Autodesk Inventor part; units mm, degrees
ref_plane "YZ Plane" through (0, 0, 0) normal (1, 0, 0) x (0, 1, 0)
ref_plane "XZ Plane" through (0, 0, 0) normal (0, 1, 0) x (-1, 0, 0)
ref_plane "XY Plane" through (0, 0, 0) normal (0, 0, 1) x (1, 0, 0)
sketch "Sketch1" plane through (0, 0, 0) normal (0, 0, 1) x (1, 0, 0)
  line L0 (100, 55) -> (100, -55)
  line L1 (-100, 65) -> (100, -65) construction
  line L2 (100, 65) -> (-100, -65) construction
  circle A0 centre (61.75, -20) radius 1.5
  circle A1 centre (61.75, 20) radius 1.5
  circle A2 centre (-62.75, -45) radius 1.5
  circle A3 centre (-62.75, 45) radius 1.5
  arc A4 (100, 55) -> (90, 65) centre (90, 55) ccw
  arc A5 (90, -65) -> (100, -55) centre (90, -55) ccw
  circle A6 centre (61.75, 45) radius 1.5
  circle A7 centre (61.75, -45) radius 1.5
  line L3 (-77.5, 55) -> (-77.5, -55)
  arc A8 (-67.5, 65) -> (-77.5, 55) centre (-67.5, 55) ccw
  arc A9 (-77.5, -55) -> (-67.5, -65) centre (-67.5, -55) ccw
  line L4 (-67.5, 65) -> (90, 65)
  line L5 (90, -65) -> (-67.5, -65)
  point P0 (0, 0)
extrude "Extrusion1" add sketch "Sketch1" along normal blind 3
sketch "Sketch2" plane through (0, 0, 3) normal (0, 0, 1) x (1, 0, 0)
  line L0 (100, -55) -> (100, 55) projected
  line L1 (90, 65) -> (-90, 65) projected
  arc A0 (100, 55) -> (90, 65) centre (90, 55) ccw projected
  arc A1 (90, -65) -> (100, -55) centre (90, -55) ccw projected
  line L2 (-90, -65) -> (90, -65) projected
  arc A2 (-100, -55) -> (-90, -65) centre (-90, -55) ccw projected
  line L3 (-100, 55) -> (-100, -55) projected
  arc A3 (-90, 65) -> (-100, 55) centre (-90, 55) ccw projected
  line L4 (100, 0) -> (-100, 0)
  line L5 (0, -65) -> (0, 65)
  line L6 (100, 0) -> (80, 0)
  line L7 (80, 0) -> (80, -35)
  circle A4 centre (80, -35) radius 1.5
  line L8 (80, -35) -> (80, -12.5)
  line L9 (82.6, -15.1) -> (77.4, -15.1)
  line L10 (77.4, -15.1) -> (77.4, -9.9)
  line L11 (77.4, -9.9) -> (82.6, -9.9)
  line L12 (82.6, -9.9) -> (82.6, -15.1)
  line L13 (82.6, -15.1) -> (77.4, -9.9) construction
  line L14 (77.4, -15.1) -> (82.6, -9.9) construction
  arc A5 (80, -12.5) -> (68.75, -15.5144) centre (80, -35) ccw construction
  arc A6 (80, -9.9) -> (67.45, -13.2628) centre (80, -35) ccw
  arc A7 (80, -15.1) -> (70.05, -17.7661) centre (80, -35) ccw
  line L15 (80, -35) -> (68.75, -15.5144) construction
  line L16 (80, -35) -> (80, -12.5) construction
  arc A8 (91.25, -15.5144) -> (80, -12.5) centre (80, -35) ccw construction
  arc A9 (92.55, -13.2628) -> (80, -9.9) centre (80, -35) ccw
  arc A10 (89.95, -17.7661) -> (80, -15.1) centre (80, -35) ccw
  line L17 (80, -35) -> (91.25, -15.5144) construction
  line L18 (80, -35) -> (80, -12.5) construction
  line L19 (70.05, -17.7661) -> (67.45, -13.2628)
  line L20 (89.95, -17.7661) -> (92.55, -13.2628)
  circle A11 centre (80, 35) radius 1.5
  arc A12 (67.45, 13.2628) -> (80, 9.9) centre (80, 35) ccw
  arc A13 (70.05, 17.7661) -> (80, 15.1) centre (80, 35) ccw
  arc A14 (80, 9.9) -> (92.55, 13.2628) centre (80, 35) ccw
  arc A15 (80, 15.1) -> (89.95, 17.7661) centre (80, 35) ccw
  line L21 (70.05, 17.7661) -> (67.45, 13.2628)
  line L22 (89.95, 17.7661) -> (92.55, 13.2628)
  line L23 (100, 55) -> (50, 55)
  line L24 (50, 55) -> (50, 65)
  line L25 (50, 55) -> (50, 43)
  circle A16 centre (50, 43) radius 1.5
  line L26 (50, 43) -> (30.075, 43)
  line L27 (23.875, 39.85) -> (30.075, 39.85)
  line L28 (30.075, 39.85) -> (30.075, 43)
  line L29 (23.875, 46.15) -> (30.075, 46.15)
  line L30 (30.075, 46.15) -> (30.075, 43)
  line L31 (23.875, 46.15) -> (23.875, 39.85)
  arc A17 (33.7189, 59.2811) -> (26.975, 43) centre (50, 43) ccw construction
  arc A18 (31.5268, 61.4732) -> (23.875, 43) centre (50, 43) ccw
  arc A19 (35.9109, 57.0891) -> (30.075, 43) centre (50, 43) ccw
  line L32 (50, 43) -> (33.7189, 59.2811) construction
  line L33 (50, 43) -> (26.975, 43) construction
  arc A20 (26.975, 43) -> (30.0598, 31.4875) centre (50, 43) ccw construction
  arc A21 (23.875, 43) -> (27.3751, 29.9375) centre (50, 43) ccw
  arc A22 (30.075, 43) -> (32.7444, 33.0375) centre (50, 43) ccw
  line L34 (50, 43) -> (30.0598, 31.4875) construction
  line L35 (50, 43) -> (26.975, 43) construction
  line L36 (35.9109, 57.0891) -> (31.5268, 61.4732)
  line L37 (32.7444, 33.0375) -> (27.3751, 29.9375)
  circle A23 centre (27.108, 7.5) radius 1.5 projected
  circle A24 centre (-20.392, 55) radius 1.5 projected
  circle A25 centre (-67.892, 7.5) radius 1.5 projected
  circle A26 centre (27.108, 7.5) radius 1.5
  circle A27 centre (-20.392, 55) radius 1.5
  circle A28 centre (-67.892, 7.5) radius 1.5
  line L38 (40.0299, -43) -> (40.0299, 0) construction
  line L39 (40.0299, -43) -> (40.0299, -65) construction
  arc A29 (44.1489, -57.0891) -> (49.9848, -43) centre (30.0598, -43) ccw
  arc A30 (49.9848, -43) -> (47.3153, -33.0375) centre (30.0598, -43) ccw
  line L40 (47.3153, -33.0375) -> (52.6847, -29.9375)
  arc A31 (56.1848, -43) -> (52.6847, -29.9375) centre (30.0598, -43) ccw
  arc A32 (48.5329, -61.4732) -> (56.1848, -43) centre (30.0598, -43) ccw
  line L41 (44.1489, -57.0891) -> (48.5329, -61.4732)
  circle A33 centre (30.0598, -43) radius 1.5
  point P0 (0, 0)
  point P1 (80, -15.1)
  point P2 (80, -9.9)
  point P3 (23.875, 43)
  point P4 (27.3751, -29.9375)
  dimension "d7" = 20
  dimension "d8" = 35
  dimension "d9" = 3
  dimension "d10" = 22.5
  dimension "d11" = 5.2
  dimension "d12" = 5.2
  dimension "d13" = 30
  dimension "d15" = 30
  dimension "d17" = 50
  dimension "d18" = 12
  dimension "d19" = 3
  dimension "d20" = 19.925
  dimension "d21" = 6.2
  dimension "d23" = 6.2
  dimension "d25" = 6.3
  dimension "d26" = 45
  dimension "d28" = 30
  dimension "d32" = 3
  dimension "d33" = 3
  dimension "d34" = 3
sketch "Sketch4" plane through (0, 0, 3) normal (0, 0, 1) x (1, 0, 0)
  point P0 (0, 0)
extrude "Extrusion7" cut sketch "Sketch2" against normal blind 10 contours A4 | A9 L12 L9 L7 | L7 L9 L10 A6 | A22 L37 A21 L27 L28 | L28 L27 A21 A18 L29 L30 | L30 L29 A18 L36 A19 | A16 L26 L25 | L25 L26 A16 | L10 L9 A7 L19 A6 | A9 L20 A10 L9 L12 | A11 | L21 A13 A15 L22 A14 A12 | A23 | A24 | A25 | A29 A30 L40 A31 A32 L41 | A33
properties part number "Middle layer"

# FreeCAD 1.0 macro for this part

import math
import FreeCAD as App
import Part
import Sketcher
Q = App.Units.Quantity

doc = App.newDocument("Part")
body = doc.addObject("PartDesign::Body", "Body")

# Sketch on XY plane
sketch1 = body.newObject("Sketcher::SketchObject", "Sketch")
sketch1.AttachmentSupport = (doc.getObject("XY_Plane"), [""])
sketch1.MapMode = "FlatFace"
sketch1.addGeometry([
    Part.LineSegment(App.Vector(100, -55, 0), App.Vector(100, 55, 0)),  # 0
    Part.ArcOfCircle(Part.Circle(App.Vector(90, 55, 0), App.Vector(0, 0, 1), 10), math.radians(0), math.radians(90)),  # 1
    Part.LineSegment(App.Vector(90, 65, 0), App.Vector(-67.5, 65, 0)),  # 2
    Part.ArcOfCircle(Part.Circle(App.Vector(-67.5, 55, 0), App.Vector(0, 0, 1), 10), math.radians(90), math.radians(180)),  # 3
    Part.LineSegment(App.Vector(-77.5, 55, 0), App.Vector(-77.5, -55, 0)),  # 4
    Part.ArcOfCircle(Part.Circle(App.Vector(-67.5, -55, 0), App.Vector(0, 0, 1), 10), math.radians(180), math.radians(270)),  # 5
    Part.LineSegment(App.Vector(-67.5, -65, 0), App.Vector(90, -65, 0)),  # 6
    Part.ArcOfCircle(Part.Circle(App.Vector(90, -55, 0), App.Vector(0, 0, 1), 10), math.radians(-90), math.radians(0)),  # 7
    Part.Circle(App.Vector(-62.8, -45, 0), App.Vector(0, 0, 1), 1.5),  # 8
    Part.Circle(App.Vector(61.8, -45, 0), App.Vector(0, 0, 1), 1.5),  # 9
    Part.Circle(App.Vector(61.8, -20, 0), App.Vector(0, 0, 1), 1.5),  # 10
    Part.Circle(App.Vector(-62.8, 45, 0), App.Vector(0, 0, 1), 1.5),  # 11
    Part.Circle(App.Vector(61.8, 20, 0), App.Vector(0, 0, 1), 1.5),  # 12
    Part.Circle(App.Vector(61.8, 45, 0), App.Vector(0, 0, 1), 1.5),  # 13
], False)
sketch1.addConstraint([
    Sketcher.Constraint("Tangent", 0, 2, 1, 1),
    Sketcher.Constraint("Tangent", 1, 2, 2, 1),
    Sketcher.Constraint("Tangent", 2, 2, 3, 1),
    Sketcher.Constraint("Tangent", 3, 2, 4, 1),
    Sketcher.Constraint("Tangent", 4, 2, 5, 1),
    Sketcher.Constraint("Tangent", 5, 2, 6, 1),
    Sketcher.Constraint("Tangent", 6, 2, 7, 1),
    Sketcher.Constraint("Tangent", 7, 2, 0, 1),
    Sketcher.Constraint("Vertical", 0),
    Sketcher.Constraint("Horizontal", 2),
    Sketcher.Constraint("Vertical", 4),
    Sketcher.Constraint("Horizontal", 6),
    Sketcher.Constraint("Equal", 1, 3),
    Sketcher.Constraint("Equal", 3, 5),
    Sketcher.Constraint("Equal", 5, 7),
    Sketcher.Constraint("Equal", 8, 9),
    Sketcher.Constraint("Equal", 9, 10),
    Sketcher.Constraint("Equal", 10, 11),
    Sketcher.Constraint("Equal", 11, 12),
    Sketcher.Constraint("Equal", 12, 13),
    Sketcher.Constraint("Symmetric", 8, 3, 11, 3, -1),
    Sketcher.Constraint("Symmetric", 10, 3, 12, 3, -1),
    Sketcher.Constraint("Symmetric", 9, 3, 13, 3, -1),
    Sketcher.Constraint("Horizontal", 8, 3, 9, 3),
    Sketcher.Constraint("Vertical", 9, 3, 10, 3),
    Sketcher.Constraint("Diameter", 8, Q("3 mm")),
    Sketcher.Constraint("Radius", 1, Q("10 mm")),
    Sketcher.Constraint("DistanceY", 0, 1, 0, 2, Q("110 mm")),
    Sketcher.Constraint("DistanceX", 2, 2, 2, 1, Q("157.5 mm")),
    Sketcher.Constraint("DistanceX", -1, 1, 1, 3, Q("90 mm")),
    Sketcher.Constraint("DistanceY", -1, 1, 1, 3, Q("55 mm")),
    Sketcher.Constraint("DistanceY", 8, 3, -1, 1, Q("45 mm")),
    Sketcher.Constraint("DistanceY", 10, 3, -1, 1, Q("20 mm")),
    Sketcher.Constraint("DistanceX", 8, 3, 9, 3, Q("124.5 mm")),
    Sketcher.Constraint("DistanceX", 8, 3, -1, 1, Q("62.75 mm")),
])
pad1 = body.newObject("PartDesign::Pad", "Pad")
pad1.Profile = sketch1
pad1.Length = 3

# Sketch on XY plane
sketch2 = body.newObject("Sketcher::SketchObject", "Sketch001")
sketch2.AttachmentSupport = (doc.getObject("XY_Plane"), [""])
sketch2.MapMode = "FlatFace"
sketch2.AttachmentOffset = App.Placement(App.Vector(0, 0, 3), App.Rotation())
sketch2.addGeometry([
    Part.Circle(App.Vector(80, -35, 0), App.Vector(0, 0, 1), 1.5),  # 0
    Part.ArcOfCircle(Part.Circle(App.Vector(80, -35, 0), App.Vector(0, 0, 1), 25.1), math.radians(90), math.radians(120)),  # 1
    Part.LineSegment(App.Vector(67.5, -13.3, 0), App.Vector(70, -17.8, 0)),  # 2
    Part.ArcOfCircle(Part.Circle(App.Vector(80, -35, 0), App.Vector(0, 0, 1), 19.9), math.radians(90), math.radians(120)),  # 3
    Part.ArcOfCircle(Part.Circle(App.Vector(80, -35, 0), App.Vector(0, 0, 1), 19.9), math.radians(60), math.radians(90)),  # 4
    Part.LineSegment(App.Vector(90, -17.8, 0), App.Vector(92.5, -13.3, 0)),  # 5
    Part.ArcOfCircle(Part.Circle(App.Vector(80, -35, 0), App.Vector(0, 0, 1), 25.1), math.radians(60), math.radians(90)),  # 6
    Part.ArcOfCircle(Part.Circle(App.Vector(50, 43, 0), App.Vector(0, 0, 1), 19.9), math.radians(180), math.radians(210)),  # 7
    Part.ArcOfCircle(Part.Circle(App.Vector(50, 43, 0), App.Vector(0, 0, 1), 19.9), math.radians(135), math.radians(180)),  # 8
    Part.LineSegment(App.Vector(35.9, 57.1, 0), App.Vector(31.5, 61.5, 0)),  # 9
    Part.ArcOfCircle(Part.Circle(App.Vector(50, 43, 0), App.Vector(0, 0, 1), 26.1), math.radians(135), math.radians(180)),  # 10
    Part.ArcOfCircle(Part.Circle(App.Vector(50, 43, 0), App.Vector(0, 0, 1), 26.1), math.radians(180), math.radians(210)),  # 11
    Part.LineSegment(App.Vector(27.4, 29.9, 0), App.Vector(32.7, 33, 0)),  # 12
    Part.Circle(App.Vector(50, 43, 0), App.Vector(0, 0, 1), 1.5),  # 13
    Part.Circle(App.Vector(80, 35, 0), App.Vector(0, 0, 1), 1.5),  # 14
    Part.LineSegment(App.Vector(70, 17.8, 0), App.Vector(67.5, 13.3, 0)),  # 15
    Part.ArcOfCircle(Part.Circle(App.Vector(80, 35, 0), App.Vector(0, 0, 1), 25.1), math.radians(-120), math.radians(-90)),  # 16
    Part.ArcOfCircle(Part.Circle(App.Vector(80, 35, 0), App.Vector(0, 0, 1), 25.1), math.radians(-90), math.radians(-60)),  # 17
    Part.LineSegment(App.Vector(92.5, 13.3, 0), App.Vector(90, 17.8, 0)),  # 18
    Part.ArcOfCircle(Part.Circle(App.Vector(80, 35, 0), App.Vector(0, 0, 1), 19.9), math.radians(-90), math.radians(-60)),  # 19
    Part.ArcOfCircle(Part.Circle(App.Vector(80, 35, 0), App.Vector(0, 0, 1), 19.9), math.radians(-120), math.radians(-90)),  # 20
    Part.Circle(App.Vector(27.1, 7.5, 0), App.Vector(0, 0, 1), 1.5),  # 21
    Part.Circle(App.Vector(-20.4, 55, 0), App.Vector(0, 0, 1), 1.5),  # 22
    Part.Circle(App.Vector(-67.9, 7.5, 0), App.Vector(0, 0, 1), 1.5),  # 23
    Part.ArcOfCircle(Part.Circle(App.Vector(30.1, -43, 0), App.Vector(0, 0, 1), 19.9), math.radians(-45), math.radians(0)),  # 24
    Part.LineSegment(App.Vector(44.1, -57.1, 0), App.Vector(48.5, -61.5, 0)),  # 25
    Part.ArcOfCircle(Part.Circle(App.Vector(30.1, -43, 0), App.Vector(0, 0, 1), 26.1), math.radians(-45), math.radians(0)),  # 26
    Part.ArcOfCircle(Part.Circle(App.Vector(30.1, -43, 0), App.Vector(0, 0, 1), 26.1), math.radians(0), math.radians(30)),  # 27
    Part.LineSegment(App.Vector(52.7, -29.9, 0), App.Vector(47.3, -33, 0)),  # 28
    Part.ArcOfCircle(Part.Circle(App.Vector(30.1, -43, 0), App.Vector(0, 0, 1), 19.9), math.radians(0), math.radians(30)),  # 29
    Part.Circle(App.Vector(30.1, -43, 0), App.Vector(0, 0, 1), 1.5),  # 30
], False)
sketch2.addConstraint([
    Sketcher.Constraint("Coincident", 1, 2, 2, 1),
    Sketcher.Constraint("Coincident", 2, 2, 3, 2),
    Sketcher.Constraint("Tangent", 3, 1, 4, 2),
    Sketcher.Constraint("Coincident", 4, 1, 5, 1),
    Sketcher.Constraint("Coincident", 5, 2, 6, 1),
    Sketcher.Constraint("Tangent", 6, 2, 1, 1),
    Sketcher.Constraint("Tangent", 7, 1, 8, 2),
    Sketcher.Constraint("Coincident", 8, 1, 9, 1),
    Sketcher.Constraint("Coincident", 9, 2, 10, 1),
    Sketcher.Constraint("Tangent", 10, 2, 11, 1),
    Sketcher.Constraint("Coincident", 11, 2, 12, 1),
    Sketcher.Constraint("Coincident", 12, 2, 7, 2),
    Sketcher.Constraint("Coincident", 15, 2, 16, 1),
    Sketcher.Constraint("Tangent", 16, 2, 17, 1),
    Sketcher.Constraint("Coincident", 17, 2, 18, 1),
    Sketcher.Constraint("Coincident", 18, 2, 19, 2),
    Sketcher.Constraint("Tangent", 19, 1, 20, 2),
    Sketcher.Constraint("Coincident", 20, 1, 15, 1),
    Sketcher.Constraint("Coincident", 24, 1, 25, 1),
    Sketcher.Constraint("Coincident", 25, 2, 26, 1),
    Sketcher.Constraint("Tangent", 26, 2, 27, 1),
    Sketcher.Constraint("Coincident", 27, 2, 28, 1),
    Sketcher.Constraint("Coincident", 28, 2, 29, 2),
    Sketcher.Constraint("Tangent", 29, 1, 24, 2),
    Sketcher.Constraint("Coincident", 1, 3, 0, 3),
    Sketcher.Constraint("Coincident", 3, 3, 0, 3),
    Sketcher.Constraint("Coincident", 10, 3, 7, 3),
    Sketcher.Constraint("Coincident", 13, 3, 7, 3),
    Sketcher.Constraint("Coincident", 16, 3, 14, 3),
    Sketcher.Constraint("Coincident", 19, 3, 14, 3),
    Sketcher.Constraint("Coincident", 26, 3, 24, 3),
    Sketcher.Constraint("Coincident", 30, 3, 24, 3),
    Sketcher.Constraint("Equal", 3, 4),
    Sketcher.Constraint("Equal", 1, 6),
    Sketcher.Constraint("Equal", 7, 8),
    Sketcher.Constraint("Equal", 10, 11),
    Sketcher.Constraint("Equal", 0, 13),
    Sketcher.Constraint("Equal", 13, 14),
    Sketcher.Constraint("Equal", 6, 16),
    Sketcher.Constraint("Equal", 16, 17),
    Sketcher.Constraint("Equal", 4, 19),
    Sketcher.Constraint("Equal", 19, 20),
    Sketcher.Constraint("Equal", 14, 21),
    Sketcher.Constraint("Equal", 21, 22),
    Sketcher.Constraint("Equal", 22, 23),
    Sketcher.Constraint("Equal", 8, 24),
    Sketcher.Constraint("Equal", 11, 26),
    Sketcher.Constraint("Equal", 26, 27),
    Sketcher.Constraint("Equal", 24, 29),
    Sketcher.Constraint("Equal", 23, 30),
    Sketcher.Constraint("Symmetric", 0, 3, 14, 3, -1),
    Sketcher.Constraint("Perpendicular", 2, 12),
    Sketcher.Constraint("Parallel", 5, 15),
    Sketcher.Constraint("Perpendicular", 12, 18),
    Sketcher.Constraint("Parallel", 9, 25),
    Sketcher.Constraint("Perpendicular", 18, 28),
    Sketcher.Constraint("Horizontal", 21, 3, 23, 3),
    Sketcher.Constraint("Horizontal", 2, 2, 4, 1),
    Sketcher.Constraint("Horizontal", 1, 2, 5, 2),
    Sketcher.Constraint("Horizontal", 13, 3, 7, 1),
    Sketcher.Constraint("Horizontal", 7, 1, 10, 2),
    Sketcher.Constraint("Horizontal", 15, 2, 17, 2),
    Sketcher.Constraint("Horizontal", 30, 3, 26, 2),
    Sketcher.Constraint("Horizontal", 26, 2, 29, 1),
    Sketcher.Constraint("Vertical", 20, 3, 3, 1),
    Sketcher.Constraint("Vertical", 3, 1, 6, 2),
    Sketcher.Constraint("Vertical", 1, 2, 15, 2),
    Sketcher.Constraint("Vertical", 6, 2, 16, 2),
    Sketcher.Constraint("Vertical", 16, 2, 19, 1),
    Sketcher.Constraint("Diameter", 0, Q("3 mm")),
    Sketcher.Constraint("Angle", 12, Q("30.0003 deg")),
    Sketcher.Constraint("DistanceY", 0, 3, -1, 1, Q("35 mm")),
    Sketcher.Constraint("DistanceX", -1, 1, 7, 3, Q("50 mm")),
    Sketcher.Constraint("Radius", 7, Q("19.925 mm")),
    Sketcher.Constraint("DistanceX", 7, 3, 0, 3, Q("30 mm")),
    Sketcher.Constraint("DistanceY", 7, 3, 22, 3, Q("12 mm")),
    Sketcher.Constraint("Distance", 2, Q("5.2 mm")),
    Sketcher.Constraint("Distance", 9, Q("6.2 mm")),
    Sketcher.Constraint("Radius", 1, Q("25.1 mm")),
    Sketcher.Constraint("DistanceX", 2, 2, 5, 2, Q("22.5 mm")),
    Sketcher.Constraint("Angle", 9, Q("135 deg")),
    Sketcher.Constraint("DistanceY", -1, 1, 7, 3, Q("43 mm")),
    Sketcher.Constraint("DistanceY", 24, 3, -1, 1, Q("43 mm")),
    Sketcher.Constraint("DistanceX", 23, 3, 21, 3, Q("95 mm")),
    Sketcher.Constraint("DistanceY", -1, 1, 21, 3, Q("7.5 mm")),
    Sketcher.Constraint("DistanceX", 22, 3, 21, 3, Q("47.5 mm")),
    Sketcher.Constraint("DistanceX", 11, 2, 7, 1, Q("2.7 mm")),
    Sketcher.Constraint("DistanceX", 27, 2, 26, 2, Q("3.5 mm")),
    Sketcher.Constraint("DistanceX", -1, 1, 21, 3, Q("27.108 mm")),
    Sketcher.Constraint("DistanceX", -1, 1, 8, 1, Q("35.911 mm")),
    Sketcher.Constraint("DistanceX", -1, 1, 24, 1, Q("44.149 mm")),
    Sketcher.Constraint("DistanceY", 24, 1, -1, 1, Q("57.089 mm")),
])
pocket1 = body.newObject("PartDesign::Pocket", "Pocket")
pocket1.Profile = sketch2
pocket1.Length = 10

doc.recompute()
